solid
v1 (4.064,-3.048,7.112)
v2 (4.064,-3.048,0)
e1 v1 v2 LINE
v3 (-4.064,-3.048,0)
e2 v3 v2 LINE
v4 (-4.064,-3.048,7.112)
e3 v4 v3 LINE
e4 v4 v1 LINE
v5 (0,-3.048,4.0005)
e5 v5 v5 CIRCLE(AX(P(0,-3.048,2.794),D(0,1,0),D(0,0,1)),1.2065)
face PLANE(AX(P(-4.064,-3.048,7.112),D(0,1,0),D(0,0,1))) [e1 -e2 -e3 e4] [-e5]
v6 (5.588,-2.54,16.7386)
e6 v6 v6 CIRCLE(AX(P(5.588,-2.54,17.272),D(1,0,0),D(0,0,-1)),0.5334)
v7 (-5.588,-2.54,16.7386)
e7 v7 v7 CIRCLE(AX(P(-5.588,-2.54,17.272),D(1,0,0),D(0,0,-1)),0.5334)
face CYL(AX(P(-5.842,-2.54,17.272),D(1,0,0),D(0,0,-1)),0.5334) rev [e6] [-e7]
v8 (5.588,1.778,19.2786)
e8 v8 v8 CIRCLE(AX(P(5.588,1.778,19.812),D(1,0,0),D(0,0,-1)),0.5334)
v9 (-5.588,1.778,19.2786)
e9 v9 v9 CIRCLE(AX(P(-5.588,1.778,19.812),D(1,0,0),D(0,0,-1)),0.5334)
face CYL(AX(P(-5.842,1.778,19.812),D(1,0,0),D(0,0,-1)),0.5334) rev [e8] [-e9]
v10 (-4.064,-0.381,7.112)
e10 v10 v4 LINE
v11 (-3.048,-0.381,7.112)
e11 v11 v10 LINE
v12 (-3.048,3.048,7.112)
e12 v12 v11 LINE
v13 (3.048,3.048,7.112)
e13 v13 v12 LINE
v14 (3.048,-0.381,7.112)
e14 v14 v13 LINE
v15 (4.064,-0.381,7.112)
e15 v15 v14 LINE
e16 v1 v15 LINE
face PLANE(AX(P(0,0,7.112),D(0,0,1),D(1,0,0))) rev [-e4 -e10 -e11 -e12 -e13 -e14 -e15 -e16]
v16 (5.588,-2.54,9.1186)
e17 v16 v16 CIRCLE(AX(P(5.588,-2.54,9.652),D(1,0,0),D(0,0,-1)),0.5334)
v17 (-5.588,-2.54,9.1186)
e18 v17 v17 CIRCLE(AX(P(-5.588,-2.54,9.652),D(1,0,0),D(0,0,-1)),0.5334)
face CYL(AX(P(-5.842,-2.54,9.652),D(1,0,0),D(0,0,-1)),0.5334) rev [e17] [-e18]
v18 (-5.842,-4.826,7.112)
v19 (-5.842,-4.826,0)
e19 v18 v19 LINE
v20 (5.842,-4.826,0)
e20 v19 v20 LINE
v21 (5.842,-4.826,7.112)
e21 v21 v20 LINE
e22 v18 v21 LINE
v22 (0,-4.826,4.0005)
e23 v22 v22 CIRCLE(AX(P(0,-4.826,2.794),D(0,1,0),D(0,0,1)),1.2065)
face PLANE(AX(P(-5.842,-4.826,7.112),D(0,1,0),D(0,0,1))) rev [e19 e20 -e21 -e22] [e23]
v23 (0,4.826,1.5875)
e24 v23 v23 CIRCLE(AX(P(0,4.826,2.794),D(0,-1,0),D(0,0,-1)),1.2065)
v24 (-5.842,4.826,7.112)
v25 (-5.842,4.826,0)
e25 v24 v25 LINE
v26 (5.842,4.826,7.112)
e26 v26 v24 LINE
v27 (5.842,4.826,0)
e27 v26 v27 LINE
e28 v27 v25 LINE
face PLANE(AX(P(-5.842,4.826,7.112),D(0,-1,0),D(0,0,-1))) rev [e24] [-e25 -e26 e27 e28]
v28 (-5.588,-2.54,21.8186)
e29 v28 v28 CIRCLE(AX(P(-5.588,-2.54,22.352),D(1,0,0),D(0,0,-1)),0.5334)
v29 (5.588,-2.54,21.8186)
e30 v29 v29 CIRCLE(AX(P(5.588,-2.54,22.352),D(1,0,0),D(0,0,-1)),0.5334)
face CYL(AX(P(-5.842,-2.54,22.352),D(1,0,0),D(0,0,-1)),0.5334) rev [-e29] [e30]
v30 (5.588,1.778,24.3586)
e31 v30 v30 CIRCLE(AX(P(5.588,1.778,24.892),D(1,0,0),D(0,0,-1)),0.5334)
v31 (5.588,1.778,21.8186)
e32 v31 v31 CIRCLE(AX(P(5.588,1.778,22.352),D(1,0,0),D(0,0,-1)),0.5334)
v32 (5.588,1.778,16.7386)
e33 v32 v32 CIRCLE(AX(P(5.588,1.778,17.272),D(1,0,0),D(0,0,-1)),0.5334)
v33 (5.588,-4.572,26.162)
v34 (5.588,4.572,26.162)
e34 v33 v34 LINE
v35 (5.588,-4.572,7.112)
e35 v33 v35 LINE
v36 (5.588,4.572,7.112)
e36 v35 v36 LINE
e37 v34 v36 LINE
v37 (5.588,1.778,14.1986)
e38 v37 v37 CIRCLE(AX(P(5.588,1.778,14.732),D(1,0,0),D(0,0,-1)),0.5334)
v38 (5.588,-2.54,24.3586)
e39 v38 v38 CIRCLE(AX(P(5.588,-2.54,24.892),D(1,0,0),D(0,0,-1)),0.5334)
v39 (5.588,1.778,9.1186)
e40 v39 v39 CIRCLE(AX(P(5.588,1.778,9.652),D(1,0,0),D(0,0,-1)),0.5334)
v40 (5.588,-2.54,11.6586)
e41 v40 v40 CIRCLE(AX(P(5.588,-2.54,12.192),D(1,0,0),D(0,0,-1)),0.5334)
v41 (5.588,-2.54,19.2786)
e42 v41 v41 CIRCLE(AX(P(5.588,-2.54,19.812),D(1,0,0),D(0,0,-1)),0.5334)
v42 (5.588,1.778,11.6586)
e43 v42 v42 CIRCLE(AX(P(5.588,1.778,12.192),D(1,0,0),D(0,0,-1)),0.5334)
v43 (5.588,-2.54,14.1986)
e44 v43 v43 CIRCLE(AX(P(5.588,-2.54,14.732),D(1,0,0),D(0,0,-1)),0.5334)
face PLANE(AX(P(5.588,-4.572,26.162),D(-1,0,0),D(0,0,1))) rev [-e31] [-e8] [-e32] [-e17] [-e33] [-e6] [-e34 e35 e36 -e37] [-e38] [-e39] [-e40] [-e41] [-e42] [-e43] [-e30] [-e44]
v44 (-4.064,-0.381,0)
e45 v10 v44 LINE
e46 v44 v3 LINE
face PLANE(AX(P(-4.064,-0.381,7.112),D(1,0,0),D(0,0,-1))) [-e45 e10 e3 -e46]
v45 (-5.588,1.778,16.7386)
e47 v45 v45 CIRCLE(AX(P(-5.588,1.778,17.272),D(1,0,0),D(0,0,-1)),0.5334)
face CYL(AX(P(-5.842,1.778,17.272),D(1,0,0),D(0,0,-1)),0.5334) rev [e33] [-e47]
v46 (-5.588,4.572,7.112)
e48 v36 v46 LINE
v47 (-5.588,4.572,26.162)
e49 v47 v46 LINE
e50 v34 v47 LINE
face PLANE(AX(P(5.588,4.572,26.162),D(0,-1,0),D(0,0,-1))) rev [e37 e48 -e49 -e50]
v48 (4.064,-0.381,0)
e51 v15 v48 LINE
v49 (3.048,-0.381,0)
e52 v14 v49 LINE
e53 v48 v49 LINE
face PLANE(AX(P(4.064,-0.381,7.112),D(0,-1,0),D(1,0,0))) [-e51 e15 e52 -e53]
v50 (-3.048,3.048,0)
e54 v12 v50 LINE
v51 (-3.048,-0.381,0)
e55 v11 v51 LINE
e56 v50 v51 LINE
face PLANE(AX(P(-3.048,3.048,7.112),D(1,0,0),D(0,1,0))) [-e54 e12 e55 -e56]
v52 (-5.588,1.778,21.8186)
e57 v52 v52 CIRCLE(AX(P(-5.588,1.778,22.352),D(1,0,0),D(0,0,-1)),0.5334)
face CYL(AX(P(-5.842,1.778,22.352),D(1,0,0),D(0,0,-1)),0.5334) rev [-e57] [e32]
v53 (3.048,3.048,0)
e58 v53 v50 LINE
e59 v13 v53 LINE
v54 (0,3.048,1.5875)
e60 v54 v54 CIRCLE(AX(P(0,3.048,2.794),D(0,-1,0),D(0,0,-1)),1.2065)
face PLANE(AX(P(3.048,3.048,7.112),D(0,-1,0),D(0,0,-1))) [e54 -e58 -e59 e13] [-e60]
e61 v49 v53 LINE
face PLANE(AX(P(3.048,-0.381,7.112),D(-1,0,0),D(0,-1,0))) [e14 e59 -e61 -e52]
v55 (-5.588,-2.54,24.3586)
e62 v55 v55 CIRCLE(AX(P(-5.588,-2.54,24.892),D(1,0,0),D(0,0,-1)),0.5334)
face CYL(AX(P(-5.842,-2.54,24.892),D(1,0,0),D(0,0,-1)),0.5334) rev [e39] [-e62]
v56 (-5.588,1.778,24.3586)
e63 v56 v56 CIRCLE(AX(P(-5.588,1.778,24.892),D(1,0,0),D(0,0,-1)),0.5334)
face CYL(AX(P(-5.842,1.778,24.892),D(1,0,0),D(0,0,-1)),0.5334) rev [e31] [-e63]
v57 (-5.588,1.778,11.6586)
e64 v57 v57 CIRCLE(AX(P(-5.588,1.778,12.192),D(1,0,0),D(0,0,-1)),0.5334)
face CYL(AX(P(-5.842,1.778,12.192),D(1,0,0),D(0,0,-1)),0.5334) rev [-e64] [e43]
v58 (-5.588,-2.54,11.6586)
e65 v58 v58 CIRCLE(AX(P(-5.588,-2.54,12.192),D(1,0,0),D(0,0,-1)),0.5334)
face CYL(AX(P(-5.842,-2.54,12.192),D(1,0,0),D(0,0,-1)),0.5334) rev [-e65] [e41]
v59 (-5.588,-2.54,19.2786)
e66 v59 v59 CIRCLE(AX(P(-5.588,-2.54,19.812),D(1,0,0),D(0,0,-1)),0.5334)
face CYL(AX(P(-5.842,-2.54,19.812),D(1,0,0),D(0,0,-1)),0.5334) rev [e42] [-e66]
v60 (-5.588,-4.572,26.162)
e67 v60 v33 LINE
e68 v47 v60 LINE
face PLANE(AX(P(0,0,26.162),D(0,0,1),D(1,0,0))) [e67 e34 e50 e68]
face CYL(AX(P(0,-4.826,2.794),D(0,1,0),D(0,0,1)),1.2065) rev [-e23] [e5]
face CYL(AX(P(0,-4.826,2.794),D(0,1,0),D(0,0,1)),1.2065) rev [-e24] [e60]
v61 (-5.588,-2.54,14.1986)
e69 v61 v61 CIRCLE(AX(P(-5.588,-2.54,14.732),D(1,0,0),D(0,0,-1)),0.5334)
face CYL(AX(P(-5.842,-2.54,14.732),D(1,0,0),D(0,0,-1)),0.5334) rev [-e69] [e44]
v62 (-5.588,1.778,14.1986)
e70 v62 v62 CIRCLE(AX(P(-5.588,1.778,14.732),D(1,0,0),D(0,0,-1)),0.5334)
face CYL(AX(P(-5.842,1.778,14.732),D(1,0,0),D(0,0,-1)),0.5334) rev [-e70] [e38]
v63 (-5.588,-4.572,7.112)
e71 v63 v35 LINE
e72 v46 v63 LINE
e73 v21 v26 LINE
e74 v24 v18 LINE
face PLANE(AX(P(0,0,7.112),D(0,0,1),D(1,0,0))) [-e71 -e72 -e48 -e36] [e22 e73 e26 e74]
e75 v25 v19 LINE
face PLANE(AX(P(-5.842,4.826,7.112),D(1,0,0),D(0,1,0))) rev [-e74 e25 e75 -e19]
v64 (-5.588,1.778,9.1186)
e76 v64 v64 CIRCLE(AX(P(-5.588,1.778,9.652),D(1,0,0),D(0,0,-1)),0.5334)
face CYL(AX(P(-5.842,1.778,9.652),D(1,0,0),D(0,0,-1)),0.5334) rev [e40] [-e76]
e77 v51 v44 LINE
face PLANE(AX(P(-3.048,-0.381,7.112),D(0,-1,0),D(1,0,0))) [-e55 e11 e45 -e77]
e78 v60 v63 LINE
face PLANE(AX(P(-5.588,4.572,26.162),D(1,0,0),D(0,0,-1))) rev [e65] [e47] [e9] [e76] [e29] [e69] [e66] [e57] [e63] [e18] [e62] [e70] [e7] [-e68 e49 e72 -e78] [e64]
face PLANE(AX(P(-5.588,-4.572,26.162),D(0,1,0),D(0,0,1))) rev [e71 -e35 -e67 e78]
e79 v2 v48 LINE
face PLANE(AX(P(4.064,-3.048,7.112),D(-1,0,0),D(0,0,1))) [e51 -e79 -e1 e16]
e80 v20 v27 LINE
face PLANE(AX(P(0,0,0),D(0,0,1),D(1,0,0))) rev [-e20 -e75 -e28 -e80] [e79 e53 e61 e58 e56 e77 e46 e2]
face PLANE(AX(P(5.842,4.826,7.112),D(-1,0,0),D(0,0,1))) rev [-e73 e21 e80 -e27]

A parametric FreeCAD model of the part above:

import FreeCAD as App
import Part
import Sketcher

V = App.Vector
Q = App.Units.Quantity

doc = App.newDocument("Part")
params = doc.addObject("Spreadsheet::Sheet", "Params")
for row, (alias, value) in enumerate([
    ("sketch1_width", "0.46 in"),
    ("sketch1_width2", "0.32 in"),
    ("sketch1_width3", "0.04 in"),
    ("sketch1_height", "0.38 in"),
    ("sketch1_height2", "0.105 in"),
    ("pad1_length", "0.28 in"),
    ("sketch2_diameter", "0.095 in"),
    ("sketch3_width", "0.44 in"),
    ("sketch3_height", "0.36 in"),
    ("pad2_length", "0.75 in"),
    ("sketch4_diameter", "0.042 in"),
], start=1):
    params.set(f"A{row}", alias)
    params.set(f"B{row}", "=" + value)
    params.setAlias(f"B{row}", alias)

body = doc.addObject("PartDesign::Body", "Body")

sketch1 = body.newObject("Sketcher::SketchObject", "Sketch")
sketch1.AttachmentSupport = (doc.getObject("XY_Plane"), [""])
sketch1.MapMode = "FlatFace"
sketch1.addGeometry(Part.LineSegment(V(-5.842, 4.826, 0), V(-5.842, -4.826, 0)), False)
sketch1.addGeometry(Part.LineSegment(V(-5.842, -4.826, 0), V(5.842, -4.826, 0)), False)
sketch1.addGeometry(Part.LineSegment(V(5.842, -4.826, 0), V(5.842, 4.826, 0)), False)
sketch1.addGeometry(Part.LineSegment(V(5.842, 4.826, 0), V(-5.842, 4.826, 0)), False)
sketch1.addGeometry(Part.LineSegment(V(4.064, -3.048, 0), V(-4.064, -3.048, 0)), False)
sketch1.addGeometry(Part.LineSegment(V(-4.064, -3.048, 0), V(-4.064, -0.381, 0)), False)
sketch1.addGeometry(Part.LineSegment(V(-4.064, -0.381, 0), V(-3.048, -0.381, 0)), False)
sketch1.addGeometry(Part.LineSegment(V(-3.048, -0.381, 0), V(-3.048, 3.048, 0)), False)
sketch1.addGeometry(Part.LineSegment(V(-3.048, 3.048, 0), V(3.048, 3.048, 0)), False)
sketch1.addGeometry(Part.LineSegment(V(3.048, 3.048, 0), V(3.048, -0.381, 0)), False)
sketch1.addGeometry(Part.LineSegment(V(3.048, -0.381, 0), V(4.064, -0.381, 0)), False)
sketch1.addGeometry(Part.LineSegment(V(4.064, -0.381, 0), V(4.064, -3.048, 0)), False)
sketch1.addConstraint(Sketcher.Constraint("Coincident", 0, 2, 1, 1))
sketch1.addConstraint(Sketcher.Constraint("Coincident", 1, 2, 2, 1))
sketch1.addConstraint(Sketcher.Constraint("Coincident", 2, 2, 3, 1))
sketch1.addConstraint(Sketcher.Constraint("Coincident", 3, 2, 0, 1))
sketch1.addConstraint(Sketcher.Constraint("Coincident", 4, 2, 5, 1))
sketch1.addConstraint(Sketcher.Constraint("Coincident", 5, 2, 6, 1))
sketch1.addConstraint(Sketcher.Constraint("Coincident", 6, 2, 7, 1))
sketch1.addConstraint(Sketcher.Constraint("Coincident", 7, 2, 8, 1))
sketch1.addConstraint(Sketcher.Constraint("Coincident", 8, 2, 9, 1))
sketch1.addConstraint(Sketcher.Constraint("Coincident", 9, 2, 10, 1))
sketch1.addConstraint(Sketcher.Constraint("Coincident", 10, 2, 11, 1))
sketch1.addConstraint(Sketcher.Constraint("Coincident", 11, 2, 4, 1))
sketch1.addConstraint(Sketcher.Constraint("Vertical", 0))
sketch1.addConstraint(Sketcher.Constraint("Horizontal", 1))
sketch1.addConstraint(Sketcher.Constraint("Vertical", 2))
sketch1.addConstraint(Sketcher.Constraint("Horizontal", 3))
sketch1.addConstraint(Sketcher.Constraint("Horizontal", 4))
sketch1.addConstraint(Sketcher.Constraint("Vertical", 5))
sketch1.addConstraint(Sketcher.Constraint("Horizontal", 6))
sketch1.addConstraint(Sketcher.Constraint("Vertical", 7))
sketch1.addConstraint(Sketcher.Constraint("Horizontal", 8))
sketch1.addConstraint(Sketcher.Constraint("Vertical", 9))
sketch1.addConstraint(Sketcher.Constraint("Horizontal", 10))
sketch1.addConstraint(Sketcher.Constraint("Vertical", 11))
sketch1.addConstraint(Sketcher.Constraint("Symmetric", 0, 2, 2, 2, -1, 1))
sketch1.addConstraint(Sketcher.Constraint("Symmetric", 6, 2, 9, 2, -2))
sketch1.addConstraint(Sketcher.Constraint("Equal", 6, 10))
sketch1.addConstraint(Sketcher.Constraint("DistanceX", 1, 1, 1, 2, Q("0.46 in")))
sketch1.addConstraint(Sketcher.Constraint("DistanceX", 4, 2, 4, 1, Q("0.32 in")))
sketch1.addConstraint(Sketcher.Constraint("DistanceX", 6, 1, 6, 2, Q("0.04 in")))
sketch1.addConstraint(Sketcher.Constraint("DistanceY", 0, 2, 0, 1, Q("0.38 in")))
sketch1.addConstraint(Sketcher.Constraint("DistanceY", 5, 1, 5, 2, Q("0.105 in")))
sketch1.addConstraint(Sketcher.Constraint("DistanceY", 7, 1, 7, 2, Q("0.135 in")))
sketch1.addConstraint(Sketcher.Constraint("DistanceY", 4, 2, -1, 1, Q("0.12 in")))
sketch1.setExpression("Constraints[27]", "Params.sketch1_width")
sketch1.setExpression("Constraints[28]", "Params.sketch1_width2")
sketch1.setExpression("Constraints[29]", "Params.sketch1_width3")
sketch1.setExpression("Constraints[30]", "Params.sketch1_height")
sketch1.setExpression("Constraints[31]", "Params.sketch1_height2")
pad1 = body.newObject("PartDesign::Pad", "Pad")
pad1.Profile = sketch1
pad1.setExpression("Length", "Params.pad1_length")

sketch2 = body.newObject("Sketcher::SketchObject", "Sketch001")
sketch2.AttachmentSupport = (doc.getObject("XZ_Plane"), [""])
sketch2.MapMode = "FlatFace"
sketch2.AttachmentOffset = App.Placement(V(0, 0, -0.19 * 25.4), App.Rotation())
sketch2.addGeometry(Part.Circle(V(0, 2.794, 0), V(0, 0, 1), 1.2065), False)
sketch2.addConstraint(Sketcher.Constraint("PointOnObject", 0, 3, -2))
sketch2.addConstraint(Sketcher.Constraint("Diameter", 0, Q("0.095 in")))
sketch2.addConstraint(Sketcher.Constraint("DistanceY", -1, 1, 0, 3, Q("0.11 in")))
sketch2.setExpression("Constraints[1]", "Params.sketch2_diameter")
pocket1 = body.newObject("PartDesign::Pocket", "Pocket")
pocket1.Profile = sketch2
pocket1.Type = "ThroughAll"
pocket1.Midplane = True

sketch3 = body.newObject("Sketcher::SketchObject", "Sketch002")
sketch3.AttachmentSupport = (doc.getObject("XY_Plane"), [""])
sketch3.MapMode = "FlatFace"
sketch3.AttachmentOffset = App.Placement(V(0, 0, 0.28 * 25.4), App.Rotation())
sketch3.addGeometry(Part.LineSegment(V(-5.588, 4.572, 0), V(-5.588, -4.572, 0)), False)
sketch3.addGeometry(Part.LineSegment(V(-5.588, -4.572, 0), V(5.588, -4.572, 0)), False)
sketch3.addGeometry(Part.LineSegment(V(5.588, -4.572, 0), V(5.588, 4.572, 0)), False)
sketch3.addGeometry(Part.LineSegment(V(5.588, 4.572, 0), V(-5.588, 4.572, 0)), False)
sketch3.addConstraint(Sketcher.Constraint("Coincident", 0, 2, 1, 1))
sketch3.addConstraint(Sketcher.Constraint("Coincident", 1, 2, 2, 1))
sketch3.addConstraint(Sketcher.Constraint("Coincident", 2, 2, 3, 1))
sketch3.addConstraint(Sketcher.Constraint("Coincident", 3, 2, 0, 1))
sketch3.addConstraint(Sketcher.Constraint("Vertical", 0))
sketch3.addConstraint(Sketcher.Constraint("Horizontal", 1))
sketch3.addConstraint(Sketcher.Constraint("Vertical", 2))
sketch3.addConstraint(Sketcher.Constraint("Horizontal", 3))
sketch3.addConstraint(Sketcher.Constraint("Symmetric", 0, 2, 2, 2, -1, 1))
sketch3.addConstraint(Sketcher.Constraint("DistanceX", 1, 1, 1, 2, Q("0.44 in")))
sketch3.addConstraint(Sketcher.Constraint("DistanceY", 0, 2, 0, 1, Q("0.36 in")))
sketch3.setExpression("Constraints[9]", "Params.sketch3_width")
sketch3.setExpression("Constraints[10]", "Params.sketch3_height")
pad2 = body.newObject("PartDesign::Pad", "Pad001")
pad2.Profile = sketch3
pad2.setExpression("Length", "Params.pad2_length")

sketch4 = body.newObject("Sketcher::SketchObject", "Sketch003")
sketch4.AttachmentSupport = (doc.getObject("YZ_Plane"), [""])
sketch4.MapMode = "FlatFace"
sketch4.AttachmentOffset = App.Placement(V(0, 0, 0.22 * 25.4), App.Rotation())
sketch4.addGeometry(Part.Circle(V(-2.54, 9.652, 0), V(0, 0, 1), 0.5334), False)
sketch4.addGeometry(Part.Circle(V(-2.54, 12.192, 0), V(0, 0, 1), 0.5334), False)
sketch4.addGeometry(Part.Circle(V(-2.54, 14.732, 0), V(0, 0, 1), 0.5334), False)
sketch4.addGeometry(Part.Circle(V(-2.54, 17.272, 0), V(0, 0, 1), 0.5334), False)
sketch4.addGeometry(Part.Circle(V(-2.54, 19.812, 0), V(0, 0, 1), 0.5334), False)
sketch4.addGeometry(Part.Circle(V(-2.54, 22.352, 0), V(0, 0, 1), 0.5334), False)
sketch4.addGeometry(Part.Circle(V(-2.54, 24.892, 0), V(0, 0, 1), 0.5334), False)
sketch4.addGeometry(Part.Circle(V(1.778, 12.192, 0), V(0, 0, 1), 0.5334), False)
sketch4.addGeometry(Part.Circle(V(1.778, 14.732, 0), V(0, 0, 1), 0.5334), False)
sketch4.addGeometry(Part.Circle(V(1.778, 17.272, 0), V(0, 0, 1), 0.5334), False)
sketch4.addGeometry(Part.Circle(V(1.778, 19.812, 0), V(0, 0, 1), 0.5334), False)
sketch4.addGeometry(Part.Circle(V(1.778, 22.352, 0), V(0, 0, 1), 0.5334), False)
sketch4.addGeometry(Part.Circle(V(1.778, 24.892, 0), V(0, 0, 1), 0.5334), False)
sketch4.addGeometry(Part.Circle(V(1.778, 9.652, 0), V(0, 0, 1), 0.5334), False)
sketch4.addConstraint(Sketcher.Constraint("Equal", 0, 1))
sketch4.addConstraint(Sketcher.Constraint("Equal", 1, 2))
sketch4.addConstraint(Sketcher.Constraint("Equal", 2, 3))
sketch4.addConstraint(Sketcher.Constraint("Equal", 3, 4))
sketch4.addConstraint(Sketcher.Constraint("Equal", 4, 5))
sketch4.addConstraint(Sketcher.Constraint("Equal", 5, 6))
sketch4.addConstraint(Sketcher.Constraint("Equal", 6, 7))
sketch4.addConstraint(Sketcher.Constraint("Equal", 7, 8))
sketch4.addConstraint(Sketcher.Constraint("Equal", 8, 9))
sketch4.addConstraint(Sketcher.Constraint("Equal", 9, 10))
sketch4.addConstraint(Sketcher.Constraint("Equal", 10, 11))
sketch4.addConstraint(Sketcher.Constraint("Equal", 11, 12))
sketch4.addConstraint(Sketcher.Constraint("Equal", 12, 13))
sketch4.addConstraint(Sketcher.Constraint("Horizontal", 1, 3, 7, 3))
sketch4.addConstraint(Sketcher.Constraint("Horizontal", 2, 3, 8, 3))
sketch4.addConstraint(Sketcher.Constraint("Horizontal", 3, 3, 9, 3))
sketch4.addConstraint(Sketcher.Constraint("Horizontal", 4, 3, 10, 3))
sketch4.addConstraint(Sketcher.Constraint("Horizontal", 5, 3, 11, 3))
sketch4.addConstraint(Sketcher.Constraint("Horizontal", 6, 3, 12, 3))
sketch4.addConstraint(Sketcher.Constraint("Horizontal", 0, 3, 13, 3))
sketch4.addConstraint(Sketcher.Constraint("Vertical", 0, 3, 1, 3))
sketch4.addConstraint(Sketcher.Constraint("Vertical", 1, 3, 2, 3))
sketch4.addConstraint(Sketcher.Constraint("Vertical", 2, 3, 3, 3))
sketch4.addConstraint(Sketcher.Constraint("Vertical", 3, 3, 4, 3))
sketch4.addConstraint(Sketcher.Constraint("Vertical", 4, 3, 5, 3))
sketch4.addConstraint(Sketcher.Constraint("Vertical", 5, 3, 6, 3))
sketch4.addConstraint(Sketcher.Constraint("Vertical", 7, 3, 8, 3))
sketch4.addConstraint(Sketcher.Constraint("Vertical", 8, 3, 9, 3))
sketch4.addConstraint(Sketcher.Constraint("Vertical", 9, 3, 10, 3))
sketch4.addConstraint(Sketcher.Constraint("Vertical", 10, 3, 11, 3))
sketch4.addConstraint(Sketcher.Constraint("Vertical", 11, 3, 12, 3))
sketch4.addConstraint(Sketcher.Constraint("Vertical", 12, 3, 13, 3))
sketch4.addConstraint(Sketcher.Constraint("Diameter", 0, Q("0.042 in")))
sketch4.addConstraint(Sketcher.Constraint("DistanceX", 0, 3, -1, 1, Q("0.1 in")))
sketch4.addConstraint(Sketcher.Constraint("DistanceY", 0, 3, 1, 3, Q("0.1 in")))
sketch4.addConstraint(Sketcher.Constraint("DistanceY", 1, 3, 2, 3, Q("0.1 in")))
sketch4.addConstraint(Sketcher.Constraint("DistanceY", 2, 3, 3, 3, Q("0.1 in")))
sketch4.addConstraint(Sketcher.Constraint("DistanceY", 3, 3, 4, 3, Q("0.1 in")))
sketch4.addConstraint(Sketcher.Constraint("DistanceY", 4, 3, 5, 3, Q("0.1 in")))
sketch4.addConstraint(Sketcher.Constraint("DistanceY", 5, 3, 6, 3, Q("0.1 in")))
sketch4.addConstraint(Sketcher.Constraint("DistanceY", -1, 1, 0, 3, Q("0.38 in")))
sketch4.addConstraint(Sketcher.Constraint("DistanceX", -1, 1, 7, 3, Q("0.07 in")))
sketch4.setExpression("Constraints[32]", "Params.sketch4_diameter")
pocket2 = body.newObject("PartDesign::Pocket", "Pocket001")
pocket2.Profile = sketch4
pocket2.Type = "ThroughAll"

doc.recompute()
